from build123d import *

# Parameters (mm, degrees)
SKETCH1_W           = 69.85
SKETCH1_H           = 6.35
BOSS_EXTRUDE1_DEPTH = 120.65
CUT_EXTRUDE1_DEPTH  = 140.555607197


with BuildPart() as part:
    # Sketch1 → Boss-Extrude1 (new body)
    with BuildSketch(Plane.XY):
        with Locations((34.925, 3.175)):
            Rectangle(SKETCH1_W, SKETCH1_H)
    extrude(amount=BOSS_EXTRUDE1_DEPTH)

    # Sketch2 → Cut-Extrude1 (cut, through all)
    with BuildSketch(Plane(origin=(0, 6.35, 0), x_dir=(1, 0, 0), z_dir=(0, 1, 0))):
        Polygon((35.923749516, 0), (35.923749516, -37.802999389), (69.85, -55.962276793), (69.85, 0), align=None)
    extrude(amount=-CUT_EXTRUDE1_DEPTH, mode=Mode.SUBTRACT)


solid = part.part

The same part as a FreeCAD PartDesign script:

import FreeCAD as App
import Part
import Sketcher
Q = App.Units.Quantity


def add_polygon(sketch, points):
    """Adds a closed chain of lines whose ends are joined by coincident constraints."""
    first, n = sketch.GeometryCount, len(points)
    for a, b in zip(points, points[1:] + points[:1]):
        sketch.addGeometry(Part.LineSegment(App.Vector(*a, 0), App.Vector(*b, 0)), False)
    for i in range(n):
        sketch.addConstraint(Sketcher.Constraint("Coincident", first + i, 2, first + (i + 1) % n, 1))

doc = App.newDocument("Part")
params = doc.addObject("Spreadsheet::Sheet", "Params")
for row, (alias, value) in enumerate([
    ("sketch1_width", "2.75 in"),
    ("sketch1_height", "0.25 in"),
    ("pad1_length", "4.75 in"),
], start=1):
    params.set(f"A{row}", alias)
    params.set(f"B{row}", "=" + value)
    params.setAlias(f"B{row}", alias)

body = doc.addObject("PartDesign::Body", "Body")

sketch1 = body.newObject("Sketcher::SketchObject", "Sketch")
sketch1.AttachmentSupport = (doc.getObject("XY_Plane"), [""])
sketch1.MapMode = "FlatFace"
add_polygon(sketch1, [(0, 6), (0, 0), (70, 0), (70, 6)])
sketch1.addConstraint([
    Sketcher.Constraint("Vertical", 0),
    Sketcher.Constraint("Horizontal", 1),
    Sketcher.Constraint("Vertical", 2),
    Sketcher.Constraint("Horizontal", 3),
    Sketcher.Constraint("Coincident", 0, 2, -1, 1),
    Sketcher.Constraint("DistanceX", 1, 1, 1, 2, Q("2.75 in")),
    Sketcher.Constraint("DistanceY", 0, 2, 0, 1, Q("0.25 in")),
])
sketch1.setExpression("Constraints[9]", "Params.sketch1_width")
sketch1.setExpression("Constraints[10]", "Params.sketch1_height")
pad1 = body.newObject("PartDesign::Pad", "Pad")
pad1.Profile = sketch1
pad1.setExpression("Length", "Params.pad1_length")

sketch2 = body.newObject("Sketcher::SketchObject", "Sketch001")
sketch2.AttachmentSupport = (doc.getObject("XZ_Plane"), [""])
sketch2.MapMode = "FlatFace"
sketch2.AttachmentOffset = App.Placement(App.Vector(0, 0, -0.25 * 25.4), App.Rotation())
add_polygon(sketch2, [(36, 0), (36, 38), (70, 56), (70, 0)])
sketch2.addConstraint([
    Sketcher.Constraint("Vertical", 0),
    Sketcher.Constraint("Vertical", 2),
    Sketcher.Constraint("Horizontal", 3),
    Sketcher.Constraint("PointOnObject", 2, 2, -1),
    Sketcher.Constraint("DistanceX", -1, 1, 1, 2, Q("2.75 in")),
    Sketcher.Constraint("DistanceY", 0, 1, 0, 2, 37.802999),
    Sketcher.Constraint("DistanceX", 3, 2, 3, 1, 33.92625),
    Sketcher.Constraint("DistanceY", 2, 2, 2, 1, 55.962277),
])
pocket1 = body.newObject("PartDesign::Pocket", "Pocket")
pocket1.Profile = sketch2
pocket1.Type = "ThroughAll"
pocket1.Reversed = True

doc.recompute()
